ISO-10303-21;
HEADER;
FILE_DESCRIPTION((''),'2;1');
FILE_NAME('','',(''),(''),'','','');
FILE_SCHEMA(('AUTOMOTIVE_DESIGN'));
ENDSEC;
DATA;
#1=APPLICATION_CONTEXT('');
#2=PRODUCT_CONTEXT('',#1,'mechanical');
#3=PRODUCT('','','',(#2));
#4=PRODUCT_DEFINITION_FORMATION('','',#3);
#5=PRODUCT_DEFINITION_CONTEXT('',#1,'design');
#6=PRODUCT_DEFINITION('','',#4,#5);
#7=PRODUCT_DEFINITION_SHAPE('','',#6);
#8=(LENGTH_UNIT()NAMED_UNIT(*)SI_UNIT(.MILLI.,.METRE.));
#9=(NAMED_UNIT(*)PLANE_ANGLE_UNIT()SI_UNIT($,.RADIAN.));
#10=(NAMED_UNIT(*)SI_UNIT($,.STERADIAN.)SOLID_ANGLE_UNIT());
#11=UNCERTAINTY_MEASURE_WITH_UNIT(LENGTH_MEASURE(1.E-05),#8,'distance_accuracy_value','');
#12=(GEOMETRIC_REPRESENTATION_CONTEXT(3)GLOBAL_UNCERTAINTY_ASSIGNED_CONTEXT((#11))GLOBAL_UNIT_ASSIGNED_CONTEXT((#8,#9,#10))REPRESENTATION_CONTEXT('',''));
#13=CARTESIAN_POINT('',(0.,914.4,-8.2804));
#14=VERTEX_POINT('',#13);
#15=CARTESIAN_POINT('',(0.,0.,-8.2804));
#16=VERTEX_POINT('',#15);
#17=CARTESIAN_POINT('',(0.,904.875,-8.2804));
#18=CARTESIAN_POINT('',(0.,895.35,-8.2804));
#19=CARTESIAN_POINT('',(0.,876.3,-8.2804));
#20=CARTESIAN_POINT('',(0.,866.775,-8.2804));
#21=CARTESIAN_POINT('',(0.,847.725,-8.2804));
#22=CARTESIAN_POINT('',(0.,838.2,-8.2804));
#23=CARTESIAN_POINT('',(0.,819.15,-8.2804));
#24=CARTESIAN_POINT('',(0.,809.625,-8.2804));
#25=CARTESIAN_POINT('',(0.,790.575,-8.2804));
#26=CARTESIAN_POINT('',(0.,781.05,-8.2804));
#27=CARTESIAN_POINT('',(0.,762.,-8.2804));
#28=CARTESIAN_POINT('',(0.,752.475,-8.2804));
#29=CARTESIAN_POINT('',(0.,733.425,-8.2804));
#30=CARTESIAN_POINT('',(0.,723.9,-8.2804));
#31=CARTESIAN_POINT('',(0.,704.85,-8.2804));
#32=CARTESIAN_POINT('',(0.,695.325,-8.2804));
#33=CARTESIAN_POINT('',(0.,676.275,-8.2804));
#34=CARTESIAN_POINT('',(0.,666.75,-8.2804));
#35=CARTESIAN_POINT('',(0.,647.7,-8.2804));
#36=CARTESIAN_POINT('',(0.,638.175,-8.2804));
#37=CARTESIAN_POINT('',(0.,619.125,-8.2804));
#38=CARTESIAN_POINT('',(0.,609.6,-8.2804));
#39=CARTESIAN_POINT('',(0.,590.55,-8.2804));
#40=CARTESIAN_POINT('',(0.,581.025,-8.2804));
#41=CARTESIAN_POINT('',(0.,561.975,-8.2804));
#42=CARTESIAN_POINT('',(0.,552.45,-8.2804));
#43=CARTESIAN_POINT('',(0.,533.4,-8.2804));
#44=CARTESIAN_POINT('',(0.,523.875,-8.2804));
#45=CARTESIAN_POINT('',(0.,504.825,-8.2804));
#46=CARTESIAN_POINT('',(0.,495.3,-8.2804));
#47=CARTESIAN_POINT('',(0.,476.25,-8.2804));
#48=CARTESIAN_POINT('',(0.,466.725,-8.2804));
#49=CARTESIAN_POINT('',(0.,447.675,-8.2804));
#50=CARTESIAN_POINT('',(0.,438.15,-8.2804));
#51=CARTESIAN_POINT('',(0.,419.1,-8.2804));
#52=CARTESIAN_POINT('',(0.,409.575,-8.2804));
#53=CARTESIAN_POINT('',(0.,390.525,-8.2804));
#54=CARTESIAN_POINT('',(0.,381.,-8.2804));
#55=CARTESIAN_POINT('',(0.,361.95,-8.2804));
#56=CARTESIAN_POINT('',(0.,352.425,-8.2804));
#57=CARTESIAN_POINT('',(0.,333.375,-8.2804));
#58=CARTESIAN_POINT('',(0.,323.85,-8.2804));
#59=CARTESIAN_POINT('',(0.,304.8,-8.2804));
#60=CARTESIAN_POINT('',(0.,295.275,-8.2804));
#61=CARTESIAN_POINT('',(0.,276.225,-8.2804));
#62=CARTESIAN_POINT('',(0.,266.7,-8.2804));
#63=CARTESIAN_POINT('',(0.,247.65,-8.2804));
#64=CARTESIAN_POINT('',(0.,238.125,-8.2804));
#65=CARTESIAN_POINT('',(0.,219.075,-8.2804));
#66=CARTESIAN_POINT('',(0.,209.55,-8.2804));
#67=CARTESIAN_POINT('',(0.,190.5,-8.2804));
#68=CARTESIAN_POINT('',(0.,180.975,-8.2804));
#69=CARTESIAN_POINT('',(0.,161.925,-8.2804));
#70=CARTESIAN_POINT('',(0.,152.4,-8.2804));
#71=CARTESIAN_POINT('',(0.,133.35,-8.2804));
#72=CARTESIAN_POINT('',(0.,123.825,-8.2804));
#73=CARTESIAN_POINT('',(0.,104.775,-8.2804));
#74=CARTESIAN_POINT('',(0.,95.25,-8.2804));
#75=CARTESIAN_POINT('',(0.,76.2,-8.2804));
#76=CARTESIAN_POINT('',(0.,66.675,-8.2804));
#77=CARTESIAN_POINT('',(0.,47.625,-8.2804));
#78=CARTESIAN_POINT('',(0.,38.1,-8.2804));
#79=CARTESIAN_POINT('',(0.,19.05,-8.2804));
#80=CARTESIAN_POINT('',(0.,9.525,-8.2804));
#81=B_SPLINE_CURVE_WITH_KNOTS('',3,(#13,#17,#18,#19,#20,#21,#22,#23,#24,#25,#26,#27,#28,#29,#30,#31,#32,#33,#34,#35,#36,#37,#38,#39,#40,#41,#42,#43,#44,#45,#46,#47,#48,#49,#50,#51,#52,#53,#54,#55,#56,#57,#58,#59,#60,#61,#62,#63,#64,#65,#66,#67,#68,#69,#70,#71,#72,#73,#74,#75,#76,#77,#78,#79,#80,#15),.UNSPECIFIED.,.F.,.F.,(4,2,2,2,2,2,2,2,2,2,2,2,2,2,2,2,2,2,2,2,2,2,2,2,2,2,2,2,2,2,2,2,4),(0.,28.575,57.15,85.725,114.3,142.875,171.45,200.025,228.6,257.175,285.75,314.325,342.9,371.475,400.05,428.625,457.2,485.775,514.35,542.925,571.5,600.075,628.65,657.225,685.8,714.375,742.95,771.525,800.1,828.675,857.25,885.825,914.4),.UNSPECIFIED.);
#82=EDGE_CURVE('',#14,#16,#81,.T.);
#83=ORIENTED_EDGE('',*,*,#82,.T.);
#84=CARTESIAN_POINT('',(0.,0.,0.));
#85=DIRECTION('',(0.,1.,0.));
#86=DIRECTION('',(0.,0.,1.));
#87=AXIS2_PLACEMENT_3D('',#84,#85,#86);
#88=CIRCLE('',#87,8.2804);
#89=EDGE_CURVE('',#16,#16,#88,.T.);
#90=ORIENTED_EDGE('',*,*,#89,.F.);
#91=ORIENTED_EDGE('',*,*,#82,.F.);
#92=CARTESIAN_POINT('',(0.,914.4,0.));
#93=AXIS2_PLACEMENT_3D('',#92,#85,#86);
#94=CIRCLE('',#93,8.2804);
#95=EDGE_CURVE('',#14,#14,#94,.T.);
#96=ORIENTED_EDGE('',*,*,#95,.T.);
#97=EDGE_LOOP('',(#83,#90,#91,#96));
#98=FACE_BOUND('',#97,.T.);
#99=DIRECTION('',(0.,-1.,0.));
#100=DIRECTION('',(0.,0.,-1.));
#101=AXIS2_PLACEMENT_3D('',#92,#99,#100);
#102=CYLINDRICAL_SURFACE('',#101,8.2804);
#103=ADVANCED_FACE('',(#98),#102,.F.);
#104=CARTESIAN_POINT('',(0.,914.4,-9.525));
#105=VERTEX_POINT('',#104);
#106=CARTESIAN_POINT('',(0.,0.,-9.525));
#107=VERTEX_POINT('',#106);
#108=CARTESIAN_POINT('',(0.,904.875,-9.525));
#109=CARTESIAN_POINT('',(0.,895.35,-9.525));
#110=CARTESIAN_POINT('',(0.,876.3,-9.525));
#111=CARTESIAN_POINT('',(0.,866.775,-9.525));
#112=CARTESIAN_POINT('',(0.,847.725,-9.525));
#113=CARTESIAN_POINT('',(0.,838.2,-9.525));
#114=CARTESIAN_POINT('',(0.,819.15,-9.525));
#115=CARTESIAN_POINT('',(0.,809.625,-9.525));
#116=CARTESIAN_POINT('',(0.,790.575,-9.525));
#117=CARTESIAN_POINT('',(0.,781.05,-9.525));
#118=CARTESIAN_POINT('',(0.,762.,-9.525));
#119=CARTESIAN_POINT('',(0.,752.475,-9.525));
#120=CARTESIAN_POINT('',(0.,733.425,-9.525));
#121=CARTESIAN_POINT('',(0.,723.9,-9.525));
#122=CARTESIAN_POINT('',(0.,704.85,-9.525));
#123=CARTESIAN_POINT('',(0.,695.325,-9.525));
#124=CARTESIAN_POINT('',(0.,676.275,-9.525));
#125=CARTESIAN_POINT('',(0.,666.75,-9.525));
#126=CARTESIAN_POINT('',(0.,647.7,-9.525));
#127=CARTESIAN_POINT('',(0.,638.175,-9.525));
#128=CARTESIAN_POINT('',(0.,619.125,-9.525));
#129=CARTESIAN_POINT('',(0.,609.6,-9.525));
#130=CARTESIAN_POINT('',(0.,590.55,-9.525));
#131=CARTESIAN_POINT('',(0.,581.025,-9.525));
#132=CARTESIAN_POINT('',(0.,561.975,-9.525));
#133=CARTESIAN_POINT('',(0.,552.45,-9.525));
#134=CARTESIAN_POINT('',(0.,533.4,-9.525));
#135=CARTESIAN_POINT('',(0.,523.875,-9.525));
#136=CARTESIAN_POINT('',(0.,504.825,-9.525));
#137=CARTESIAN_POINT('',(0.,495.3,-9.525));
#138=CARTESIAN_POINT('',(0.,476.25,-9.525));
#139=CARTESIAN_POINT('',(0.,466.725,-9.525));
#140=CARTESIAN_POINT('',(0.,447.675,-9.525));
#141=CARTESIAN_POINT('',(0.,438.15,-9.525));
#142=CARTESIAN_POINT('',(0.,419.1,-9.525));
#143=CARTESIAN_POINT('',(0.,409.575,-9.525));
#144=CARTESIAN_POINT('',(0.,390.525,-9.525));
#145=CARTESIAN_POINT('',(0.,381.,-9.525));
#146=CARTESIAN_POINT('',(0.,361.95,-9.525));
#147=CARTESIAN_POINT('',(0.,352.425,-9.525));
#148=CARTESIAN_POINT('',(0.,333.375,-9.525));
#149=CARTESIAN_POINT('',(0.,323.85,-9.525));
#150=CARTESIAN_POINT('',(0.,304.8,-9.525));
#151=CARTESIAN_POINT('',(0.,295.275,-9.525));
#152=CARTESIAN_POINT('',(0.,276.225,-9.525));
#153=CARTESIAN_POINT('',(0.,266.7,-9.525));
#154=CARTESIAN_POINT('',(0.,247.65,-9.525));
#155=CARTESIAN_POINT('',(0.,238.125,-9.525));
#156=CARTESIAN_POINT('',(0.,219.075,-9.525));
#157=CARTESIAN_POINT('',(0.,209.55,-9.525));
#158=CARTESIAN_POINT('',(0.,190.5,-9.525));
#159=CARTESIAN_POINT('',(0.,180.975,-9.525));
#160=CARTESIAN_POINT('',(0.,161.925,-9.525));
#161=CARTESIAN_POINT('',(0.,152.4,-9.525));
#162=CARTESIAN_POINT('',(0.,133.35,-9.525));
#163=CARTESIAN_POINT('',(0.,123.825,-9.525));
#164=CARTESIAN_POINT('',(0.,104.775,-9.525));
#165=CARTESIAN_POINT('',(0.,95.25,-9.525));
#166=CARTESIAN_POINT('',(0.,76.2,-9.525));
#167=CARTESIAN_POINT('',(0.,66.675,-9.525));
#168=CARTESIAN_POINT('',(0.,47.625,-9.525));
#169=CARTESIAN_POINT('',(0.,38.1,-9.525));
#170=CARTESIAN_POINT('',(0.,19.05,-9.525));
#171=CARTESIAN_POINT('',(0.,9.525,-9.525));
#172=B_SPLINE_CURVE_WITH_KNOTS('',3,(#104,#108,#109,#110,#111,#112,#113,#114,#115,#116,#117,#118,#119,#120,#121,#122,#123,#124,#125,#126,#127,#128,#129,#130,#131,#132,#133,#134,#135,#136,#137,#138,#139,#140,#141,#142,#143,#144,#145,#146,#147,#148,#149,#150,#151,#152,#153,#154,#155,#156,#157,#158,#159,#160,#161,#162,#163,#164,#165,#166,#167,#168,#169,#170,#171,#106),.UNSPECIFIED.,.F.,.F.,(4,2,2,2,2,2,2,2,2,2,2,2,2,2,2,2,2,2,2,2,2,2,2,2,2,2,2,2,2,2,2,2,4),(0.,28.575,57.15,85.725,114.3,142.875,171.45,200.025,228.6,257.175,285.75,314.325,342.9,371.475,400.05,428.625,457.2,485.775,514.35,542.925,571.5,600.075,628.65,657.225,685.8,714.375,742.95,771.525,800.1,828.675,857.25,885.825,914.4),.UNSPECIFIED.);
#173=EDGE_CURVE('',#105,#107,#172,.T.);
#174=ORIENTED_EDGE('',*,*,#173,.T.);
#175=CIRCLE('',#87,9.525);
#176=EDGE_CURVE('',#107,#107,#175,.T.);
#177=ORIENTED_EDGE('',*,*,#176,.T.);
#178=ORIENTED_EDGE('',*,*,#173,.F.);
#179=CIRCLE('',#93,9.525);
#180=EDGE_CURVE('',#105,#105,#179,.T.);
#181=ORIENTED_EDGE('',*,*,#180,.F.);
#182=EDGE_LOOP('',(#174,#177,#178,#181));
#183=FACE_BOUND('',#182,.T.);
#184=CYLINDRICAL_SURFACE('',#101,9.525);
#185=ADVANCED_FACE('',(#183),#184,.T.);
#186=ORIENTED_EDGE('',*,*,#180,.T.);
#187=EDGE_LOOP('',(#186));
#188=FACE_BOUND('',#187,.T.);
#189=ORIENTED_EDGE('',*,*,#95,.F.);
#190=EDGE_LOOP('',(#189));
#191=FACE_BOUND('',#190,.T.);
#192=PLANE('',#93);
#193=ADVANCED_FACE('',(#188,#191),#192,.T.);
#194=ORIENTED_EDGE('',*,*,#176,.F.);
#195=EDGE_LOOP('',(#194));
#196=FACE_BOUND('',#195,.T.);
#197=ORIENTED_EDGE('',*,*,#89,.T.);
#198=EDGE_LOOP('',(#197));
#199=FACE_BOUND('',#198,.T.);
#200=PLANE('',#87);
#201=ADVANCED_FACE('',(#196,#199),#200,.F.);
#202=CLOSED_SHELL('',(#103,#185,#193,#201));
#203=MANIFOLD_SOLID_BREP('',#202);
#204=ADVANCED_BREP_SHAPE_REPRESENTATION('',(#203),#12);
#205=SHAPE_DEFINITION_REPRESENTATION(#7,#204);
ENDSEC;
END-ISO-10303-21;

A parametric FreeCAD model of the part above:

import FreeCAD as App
import Part
import Sketcher

V = App.Vector
Q = App.Units.Quantity

doc = App.newDocument("Part")
body = doc.addObject("PartDesign::Body", "Body")

# Sketch on XZ plane
sketch1 = body.newObject("Sketcher::SketchObject", "Sketch")
sketch1.AttachmentSupport = (doc.getObject("XZ_Plane"), [""])
sketch1.MapMode = "FlatFace"
sketch1.addGeometry([
    Part.Circle(V(0, 0, 0), V(0, 0, 1), 10),
    Part.Circle(V(0, 0, 0), V(0, 0, 1), 8),
], False)
sketch1.addConstraint([
    Sketcher.Constraint("Coincident", 0, 3, -1, 1),
    Sketcher.Constraint("Coincident", 1, 3, -1, 1),
    Sketcher.Constraint("Diameter", 0, Q("0.75 in")),
    Sketcher.Constraint("Diameter", 1, Q("0.652 in")),
])
pad1 = body.newObject("PartDesign::Pad", "Pad")
pad1.Profile = sketch1
pad1.Length = Q("36 in")
pad1.Reversed = True

doc.recompute()
